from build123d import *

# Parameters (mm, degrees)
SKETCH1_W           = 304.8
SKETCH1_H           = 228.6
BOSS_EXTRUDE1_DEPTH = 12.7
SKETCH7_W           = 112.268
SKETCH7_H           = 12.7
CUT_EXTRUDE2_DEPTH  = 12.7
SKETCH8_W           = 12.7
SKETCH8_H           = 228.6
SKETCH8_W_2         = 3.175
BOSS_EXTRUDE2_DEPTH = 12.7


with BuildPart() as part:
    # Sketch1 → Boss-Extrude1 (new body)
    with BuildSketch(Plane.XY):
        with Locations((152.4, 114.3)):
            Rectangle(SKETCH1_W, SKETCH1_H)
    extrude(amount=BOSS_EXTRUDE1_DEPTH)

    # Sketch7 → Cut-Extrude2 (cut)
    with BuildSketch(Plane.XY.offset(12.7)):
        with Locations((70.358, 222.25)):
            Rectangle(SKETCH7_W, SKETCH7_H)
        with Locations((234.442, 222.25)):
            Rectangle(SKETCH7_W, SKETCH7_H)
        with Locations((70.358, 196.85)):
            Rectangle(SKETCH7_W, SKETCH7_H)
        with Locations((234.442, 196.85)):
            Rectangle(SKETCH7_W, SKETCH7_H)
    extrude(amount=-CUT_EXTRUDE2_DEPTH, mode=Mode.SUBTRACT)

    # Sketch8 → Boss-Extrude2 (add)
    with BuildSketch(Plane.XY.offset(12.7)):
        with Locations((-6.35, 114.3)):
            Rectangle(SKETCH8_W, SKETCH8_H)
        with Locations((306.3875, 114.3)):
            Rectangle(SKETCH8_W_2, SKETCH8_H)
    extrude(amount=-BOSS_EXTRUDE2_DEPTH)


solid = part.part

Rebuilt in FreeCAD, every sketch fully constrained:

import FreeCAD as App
import Part
import Sketcher
from FreeCAD import Vector
Q = App.Units.Quantity


def add_polygon(sketch, points):
    """Adds a closed chain of lines whose ends are joined by coincident constraints."""
    first, n = sketch.GeometryCount, len(points)
    for a, b in zip(points, points[1:] + points[:1]):
        sketch.addGeometry(Part.LineSegment(App.Vector(*a, 0), App.Vector(*b, 0)), False)
    for i in range(n):
        sketch.addConstraint(Sketcher.Constraint("Coincident", first + i, 2, first + (i + 1) % n, 1))

doc = App.newDocument("Part")
params = doc.addObject("Spreadsheet::Sheet", "Params")
for row, (alias, value) in enumerate([
    ("sketch1_width", "12 in"),
    ("sketch1_height", "9 in"),
    ("pad1_length", "0.5 in"),
    ("sketch2_height", "0.5 in"),
    ("sketch2_width", "4.42 in"),
    ("pocket1_length", "0.5 in"),
    ("sketch3_height", "9 in"),
    ("sketch3_width", "0.5 in"),
    ("sketch3_width2", "0.125 in"),
    ("pad2_length", "0.5 in"),
], start=1):
    params.set(f"A{row}", alias)
    params.set(f"B{row}", "=" + value)
    params.setAlias(f"B{row}", alias)

body = doc.addObject("PartDesign::Body", "Body")

# Sketch on XY plane
sketch1 = doc.addObject("Sketcher::SketchObject", "Sketch")
body.addObject(sketch1)
sketch1.AttachmentSupport = (doc.XY_Plane, [""])
sketch1.MapMode = "FlatFace"
add_polygon(sketch1, [(0, 228.6), (0, 0), (304.8, 0), (304.8, 228.6)])  # lines 0-3
sketch1.addConstraint([
    Sketcher.Constraint("Vertical", 0),
    Sketcher.Constraint("Horizontal", 1),
    Sketcher.Constraint("Vertical", 2),
    Sketcher.Constraint("Horizontal", 3),
    Sketcher.Constraint("Coincident", 0, 2, -1, 1),
    Sketcher.Constraint("DistanceX", 1, 1, 1, 2, Q("12 in")),
    Sketcher.Constraint("DistanceY", 0, 2, 0, 1, Q("9 in")),
])
sketch1.setExpression("Constraints[9]", "Params.sketch1_width")
sketch1.setExpression("Constraints[10]", "Params.sketch1_height")
pad1 = doc.addObject("PartDesign::Pad", "Pad")
body.addObject(pad1)
pad1.Profile = sketch1
pad1.setExpression("Length", "Params.pad1_length")

# Sketch on XY plane
sketch2 = doc.addObject("Sketcher::SketchObject", "Sketch001")
body.addObject(sketch2)
sketch2.AttachmentSupport = (doc.XY_Plane, [""])
sketch2.MapMode = "FlatFace"
sketch2.AttachmentOffset = App.Placement(Vector(0, 0, 0.5 * 25.4), App.Rotation())
add_polygon(sketch2, [(14.224, 228.6), (14.224, 215.9), (126.492, 215.9), (126.492, 228.6)])  # lines 0-3
add_polygon(sketch2, [(178.308, 228.6), (178.308, 215.9), (290.576, 215.9), (290.576, 228.6)])  # lines 4-7
add_polygon(sketch2, [(14.224, 203.2), (14.224, 190.5), (126.492, 190.5), (126.492, 203.2)])  # lines 8-11
add_polygon(sketch2, [(178.308, 203.2), (178.308, 190.5), (290.576, 190.5), (290.576, 203.2)])  # lines 12-15
sketch2.addConstraint([
    Sketcher.Constraint("Vertical", 0),
    Sketcher.Constraint("Horizontal", 1),
    Sketcher.Constraint("Vertical", 2),
    Sketcher.Constraint("Horizontal", 3),
    Sketcher.Constraint("Vertical", 4),
    Sketcher.Constraint("Horizontal", 5),
    Sketcher.Constraint("Vertical", 6),
    Sketcher.Constraint("Horizontal", 7),
    Sketcher.Constraint("Vertical", 8),
    Sketcher.Constraint("Horizontal", 9),
    Sketcher.Constraint("Vertical", 10),
    Sketcher.Constraint("Horizontal", 11),
    Sketcher.Constraint("Vertical", 12),
    Sketcher.Constraint("Horizontal", 13),
    Sketcher.Constraint("Vertical", 14),
    Sketcher.Constraint("Horizontal", 15),
    Sketcher.Constraint("Horizontal", 1, 2, 4, 2),
    Sketcher.Constraint("Horizontal", 3, 2, 6, 2),
    Sketcher.Constraint("Horizontal", 9, 2, 12, 2),
    Sketcher.Constraint("Horizontal", 11, 2, 14, 2),
    Sketcher.Constraint("Vertical", 3, 2, 8, 2),
    Sketcher.Constraint("Vertical", 2, 2, 9, 2),
    Sketcher.Constraint("Vertical", 7, 2, 12, 2),
    Sketcher.Constraint("Vertical", 6, 2, 13, 2),
    Sketcher.Constraint("Equal", 3, 5),
    Sketcher.Constraint("Equal", 6, 8),
    Sketcher.Constraint("DistanceY", 0, 2, 0, 1, Q("0.5 in")),
    Sketcher.Constraint("DistanceY", -1, 1, 2, 2, Q("9 in")),
    Sketcher.Constraint("DistanceY", -1, 1, 10, 2, Q("8 in")),
    Sketcher.Constraint("DistanceX", 1, 1, 1, 2, Q("4.42 in")),
    Sketcher.Constraint("DistanceX", -1, 1, 0, 2, Q("0.56 in")),
    Sketcher.Constraint("DistanceX", -1, 1, 4, 2, Q("7.02 in")),
])
sketch2.setExpression("Constraints[42]", "Params.sketch2_height")
sketch2.setExpression("Constraints[45]", "Params.sketch2_width")
pocket1 = doc.addObject("PartDesign::Pocket", "Pocket")
body.addObject(pocket1)
pocket1.Profile = sketch2
pocket1.setExpression("Length", "Params.pocket1_length")

# Sketch on XY plane
sketch3 = doc.addObject("Sketcher::SketchObject", "Sketch002")
body.addObject(sketch3)
sketch3.AttachmentSupport = (doc.XY_Plane, [""])
sketch3.MapMode = "FlatFace"
sketch3.AttachmentOffset = App.Placement(Vector(0, 0, 0.5 * 25.4), App.Rotation())
add_polygon(sketch3, [(-12.7, 228.6), (-12.7, 0), (0, 0), (0, 228.6)])  # lines 0-3
add_polygon(sketch3, [(304.8, 228.6), (304.8, 0), (307.975, 0), (307.975, 228.6)])  # lines 4-7
sketch3.addConstraint([
    Sketcher.Constraint("Vertical", 0),
    Sketcher.Constraint("Horizontal", 1),
    Sketcher.Constraint("Vertical", 2),
    Sketcher.Constraint("Horizontal", 3),
    Sketcher.Constraint("Vertical", 4),
    Sketcher.Constraint("Horizontal", 5),
    Sketcher.Constraint("Vertical", 6),
    Sketcher.Constraint("Horizontal", 7),
    Sketcher.Constraint("Coincident", 1, 2, -1, 1),
    Sketcher.Constraint("PointOnObject", 4, 2, -1),
    Sketcher.Constraint("Horizontal", 3, 2, 6, 2),
    Sketcher.Constraint("DistanceY", 0, 2, 0, 1, Q("9 in")),
    Sketcher.Constraint("DistanceX", 1, 1, 1, 2, Q("0.5 in")),
    Sketcher.Constraint("DistanceX", -1, 1, 4, 2, Q("12 in")),
    Sketcher.Constraint("DistanceX", 5, 1, 5, 2, Q("0.125 in")),
])
sketch3.setExpression("Constraints[19]", "Params.sketch3_height")
sketch3.setExpression("Constraints[20]", "Params.sketch3_width")
sketch3.setExpression("Constraints[22]", "Params.sketch3_width2")
pad2 = doc.addObject("PartDesign::Pad", "Pad001")
body.addObject(pad2)
pad2.Profile = sketch3
pad2.setExpression("Length", "Params.pad2_length")
pad2.Reversed = True

doc.recompute()
